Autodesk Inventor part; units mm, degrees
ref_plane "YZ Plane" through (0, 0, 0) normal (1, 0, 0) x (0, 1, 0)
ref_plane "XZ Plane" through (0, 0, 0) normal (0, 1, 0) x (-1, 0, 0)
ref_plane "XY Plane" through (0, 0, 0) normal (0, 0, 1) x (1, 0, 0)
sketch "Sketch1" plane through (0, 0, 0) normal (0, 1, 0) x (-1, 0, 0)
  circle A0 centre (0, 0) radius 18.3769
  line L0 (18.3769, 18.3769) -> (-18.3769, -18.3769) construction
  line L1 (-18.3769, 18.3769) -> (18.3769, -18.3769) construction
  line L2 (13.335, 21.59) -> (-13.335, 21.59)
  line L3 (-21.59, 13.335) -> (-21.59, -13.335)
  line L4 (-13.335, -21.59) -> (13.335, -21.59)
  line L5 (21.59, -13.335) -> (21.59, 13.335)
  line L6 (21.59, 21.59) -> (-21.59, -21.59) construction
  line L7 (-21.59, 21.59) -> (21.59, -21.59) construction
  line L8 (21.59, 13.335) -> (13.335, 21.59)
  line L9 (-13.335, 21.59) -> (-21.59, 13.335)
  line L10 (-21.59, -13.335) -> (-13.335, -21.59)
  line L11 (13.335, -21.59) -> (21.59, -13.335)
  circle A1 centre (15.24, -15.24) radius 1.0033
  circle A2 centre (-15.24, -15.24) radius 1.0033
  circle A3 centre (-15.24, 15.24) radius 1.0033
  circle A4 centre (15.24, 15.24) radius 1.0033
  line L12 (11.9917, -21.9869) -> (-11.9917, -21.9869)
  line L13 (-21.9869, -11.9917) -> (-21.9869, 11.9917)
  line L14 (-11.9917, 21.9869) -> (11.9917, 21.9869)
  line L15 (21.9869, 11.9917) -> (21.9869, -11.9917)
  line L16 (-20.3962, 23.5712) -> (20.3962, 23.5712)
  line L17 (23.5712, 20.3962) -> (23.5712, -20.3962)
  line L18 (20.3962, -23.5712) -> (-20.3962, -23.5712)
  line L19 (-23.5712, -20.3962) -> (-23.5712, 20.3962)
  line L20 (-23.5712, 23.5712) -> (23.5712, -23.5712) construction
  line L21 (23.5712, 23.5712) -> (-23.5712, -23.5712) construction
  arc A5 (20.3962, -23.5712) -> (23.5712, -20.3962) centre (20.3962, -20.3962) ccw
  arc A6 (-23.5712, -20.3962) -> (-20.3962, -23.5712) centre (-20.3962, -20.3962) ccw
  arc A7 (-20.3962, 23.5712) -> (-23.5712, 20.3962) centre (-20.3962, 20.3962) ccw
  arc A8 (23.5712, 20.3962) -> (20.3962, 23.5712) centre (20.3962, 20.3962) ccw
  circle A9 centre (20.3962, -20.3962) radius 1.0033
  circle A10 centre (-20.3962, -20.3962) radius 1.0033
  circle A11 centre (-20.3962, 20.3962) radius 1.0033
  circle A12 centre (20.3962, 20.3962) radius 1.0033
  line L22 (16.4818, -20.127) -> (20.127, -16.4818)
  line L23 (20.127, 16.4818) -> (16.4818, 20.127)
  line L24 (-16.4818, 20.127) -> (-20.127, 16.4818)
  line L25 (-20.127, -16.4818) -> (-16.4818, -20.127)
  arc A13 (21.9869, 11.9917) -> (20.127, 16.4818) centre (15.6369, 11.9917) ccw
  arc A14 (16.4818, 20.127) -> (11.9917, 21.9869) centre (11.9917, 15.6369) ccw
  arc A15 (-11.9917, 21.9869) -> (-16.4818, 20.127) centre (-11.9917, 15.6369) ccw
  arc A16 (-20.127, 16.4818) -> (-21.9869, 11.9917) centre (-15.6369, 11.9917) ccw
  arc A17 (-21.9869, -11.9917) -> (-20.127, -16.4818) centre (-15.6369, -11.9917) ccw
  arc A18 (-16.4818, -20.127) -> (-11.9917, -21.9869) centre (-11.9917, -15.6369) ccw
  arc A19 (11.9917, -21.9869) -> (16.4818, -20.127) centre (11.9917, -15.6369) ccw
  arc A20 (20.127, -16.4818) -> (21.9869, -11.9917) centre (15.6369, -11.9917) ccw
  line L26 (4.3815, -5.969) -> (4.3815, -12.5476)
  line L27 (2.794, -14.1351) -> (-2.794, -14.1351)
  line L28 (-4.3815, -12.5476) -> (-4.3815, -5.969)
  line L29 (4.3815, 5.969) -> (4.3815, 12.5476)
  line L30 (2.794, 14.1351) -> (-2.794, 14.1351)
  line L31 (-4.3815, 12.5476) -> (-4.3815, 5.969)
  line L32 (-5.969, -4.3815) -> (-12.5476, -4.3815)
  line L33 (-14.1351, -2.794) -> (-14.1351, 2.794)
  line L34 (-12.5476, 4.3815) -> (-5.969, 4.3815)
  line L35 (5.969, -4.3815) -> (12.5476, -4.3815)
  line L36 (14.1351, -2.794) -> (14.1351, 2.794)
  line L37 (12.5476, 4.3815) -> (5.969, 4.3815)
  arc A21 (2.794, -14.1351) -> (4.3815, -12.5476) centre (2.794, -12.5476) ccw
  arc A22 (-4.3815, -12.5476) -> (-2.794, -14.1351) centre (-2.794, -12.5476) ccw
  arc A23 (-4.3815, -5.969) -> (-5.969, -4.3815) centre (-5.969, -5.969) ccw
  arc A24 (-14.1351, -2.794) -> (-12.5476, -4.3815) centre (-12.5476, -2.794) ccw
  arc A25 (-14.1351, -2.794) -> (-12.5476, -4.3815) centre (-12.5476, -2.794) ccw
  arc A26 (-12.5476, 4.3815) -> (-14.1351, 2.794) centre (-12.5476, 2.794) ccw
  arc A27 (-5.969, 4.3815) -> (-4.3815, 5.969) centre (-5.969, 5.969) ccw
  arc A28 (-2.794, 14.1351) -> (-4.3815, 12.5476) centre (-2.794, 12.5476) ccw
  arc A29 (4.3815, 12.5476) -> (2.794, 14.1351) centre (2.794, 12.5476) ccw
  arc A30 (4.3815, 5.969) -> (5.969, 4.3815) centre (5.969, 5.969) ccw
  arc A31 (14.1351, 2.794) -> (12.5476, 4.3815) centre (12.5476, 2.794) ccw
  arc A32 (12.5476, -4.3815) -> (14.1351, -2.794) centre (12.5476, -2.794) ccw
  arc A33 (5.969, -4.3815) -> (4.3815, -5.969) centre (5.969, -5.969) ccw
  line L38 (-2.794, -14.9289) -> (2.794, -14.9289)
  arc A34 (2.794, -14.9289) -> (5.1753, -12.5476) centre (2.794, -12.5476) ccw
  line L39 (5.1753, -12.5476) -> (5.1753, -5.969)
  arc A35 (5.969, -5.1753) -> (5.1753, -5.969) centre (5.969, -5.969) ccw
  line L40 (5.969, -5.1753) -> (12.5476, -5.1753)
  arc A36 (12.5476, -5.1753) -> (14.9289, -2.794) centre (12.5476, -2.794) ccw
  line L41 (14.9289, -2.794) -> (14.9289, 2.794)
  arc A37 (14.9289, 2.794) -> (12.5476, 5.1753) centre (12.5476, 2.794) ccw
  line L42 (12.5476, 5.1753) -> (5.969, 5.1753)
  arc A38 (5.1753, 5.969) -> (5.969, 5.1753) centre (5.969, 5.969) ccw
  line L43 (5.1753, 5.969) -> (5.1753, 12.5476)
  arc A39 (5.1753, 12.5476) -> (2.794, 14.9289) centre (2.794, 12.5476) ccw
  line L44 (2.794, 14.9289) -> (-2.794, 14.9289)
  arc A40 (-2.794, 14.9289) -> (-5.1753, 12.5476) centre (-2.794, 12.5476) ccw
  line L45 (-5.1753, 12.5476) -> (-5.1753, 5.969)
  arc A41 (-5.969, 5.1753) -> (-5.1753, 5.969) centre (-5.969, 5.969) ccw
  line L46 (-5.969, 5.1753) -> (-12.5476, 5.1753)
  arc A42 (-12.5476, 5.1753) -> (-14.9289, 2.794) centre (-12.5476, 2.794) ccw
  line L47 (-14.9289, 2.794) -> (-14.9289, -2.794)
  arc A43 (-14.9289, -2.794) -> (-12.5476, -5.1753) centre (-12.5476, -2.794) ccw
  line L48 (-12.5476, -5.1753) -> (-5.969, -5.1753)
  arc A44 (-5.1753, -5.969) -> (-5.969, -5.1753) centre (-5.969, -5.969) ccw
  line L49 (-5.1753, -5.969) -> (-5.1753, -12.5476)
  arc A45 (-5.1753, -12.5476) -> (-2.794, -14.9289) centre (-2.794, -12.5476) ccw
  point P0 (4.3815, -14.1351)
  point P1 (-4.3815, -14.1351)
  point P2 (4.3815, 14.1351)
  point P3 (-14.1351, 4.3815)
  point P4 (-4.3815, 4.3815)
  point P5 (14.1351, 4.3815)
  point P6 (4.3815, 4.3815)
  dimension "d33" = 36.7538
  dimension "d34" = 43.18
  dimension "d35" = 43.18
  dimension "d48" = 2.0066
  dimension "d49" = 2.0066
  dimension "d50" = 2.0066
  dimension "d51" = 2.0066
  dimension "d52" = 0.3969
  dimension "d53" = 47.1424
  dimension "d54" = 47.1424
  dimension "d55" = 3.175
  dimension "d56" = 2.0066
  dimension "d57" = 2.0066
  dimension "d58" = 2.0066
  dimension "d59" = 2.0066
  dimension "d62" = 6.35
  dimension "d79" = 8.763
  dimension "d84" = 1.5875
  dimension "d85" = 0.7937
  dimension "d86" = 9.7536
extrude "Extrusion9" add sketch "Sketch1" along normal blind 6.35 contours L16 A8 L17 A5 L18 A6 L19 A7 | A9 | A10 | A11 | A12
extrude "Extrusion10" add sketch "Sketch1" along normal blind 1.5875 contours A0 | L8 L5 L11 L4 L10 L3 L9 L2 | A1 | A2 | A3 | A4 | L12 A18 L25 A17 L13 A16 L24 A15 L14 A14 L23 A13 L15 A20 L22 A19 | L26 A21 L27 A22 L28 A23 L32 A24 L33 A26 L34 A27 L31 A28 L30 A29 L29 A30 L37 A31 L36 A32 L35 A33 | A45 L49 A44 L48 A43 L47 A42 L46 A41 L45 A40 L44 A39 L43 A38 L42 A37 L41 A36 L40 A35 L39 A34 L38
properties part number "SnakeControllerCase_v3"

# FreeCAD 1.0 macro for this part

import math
import FreeCAD as App
import Part
import Sketcher
from FreeCAD import Vector
Q = App.Units.Quantity

doc = App.newDocument("Part")
body = doc.addObject("PartDesign::Body", "Body")

# Sketch on XZ plane
sketch1 = doc.addObject("Sketcher::SketchObject", "Sketch")
body.addObject(sketch1)
sketch1.AttachmentSupport = (doc.XZ_Plane, [""])
sketch1.MapMode = "FlatFace"
sketch1.addGeometry([
    Part.LineSegment(Vector(-20.4, 23.6, 0), Vector(20.4, 23.6, 0)),  # 0
    Part.ArcOfCircle(Part.Circle(Vector(20.4, 20.4, 0), Vector(0, 0, 1), 3.2), math.radians(0), math.radians(90)),  # 1
    Part.LineSegment(Vector(23.6, 20.4, 0), Vector(23.6, -20.4, 0)),  # 2
    Part.ArcOfCircle(Part.Circle(Vector(20.4, -20.4, 0), Vector(0, 0, 1), 3.2), math.radians(-90), math.radians(0)),  # 3
    Part.LineSegment(Vector(20.4, -23.6, 0), Vector(-20.4, -23.6, 0)),  # 4
    Part.ArcOfCircle(Part.Circle(Vector(-20.4, -20.4, 0), Vector(0, 0, 1), 3.2), math.radians(180), math.radians(270)),  # 5
    Part.LineSegment(Vector(-23.6, -20.4, 0), Vector(-23.6, 20.4, 0)),  # 6
    Part.ArcOfCircle(Part.Circle(Vector(-20.4, 20.4, 0), Vector(0, 0, 1), 3.2), math.radians(90), math.radians(180)),  # 7
    Part.ArcOfCircle(Part.Circle(Vector(-12, -15.6, 0), Vector(0, 0, 1), 6.3), math.radians(-135), math.radians(-90)),  # 8
    Part.LineSegment(Vector(-12, -22, 0), Vector(12, -22, 0)),  # 9
    Part.ArcOfCircle(Part.Circle(Vector(12, -15.6, 0), Vector(0, 0, 1), 6.3), math.radians(-90), math.radians(-45)),  # 10
    Part.LineSegment(Vector(16.5, -20.1, 0), Vector(20.1, -16.5, 0)),  # 11
    Part.ArcOfCircle(Part.Circle(Vector(15.6, -12, 0), Vector(0, 0, 1), 6.3), math.radians(-45), math.radians(0)),  # 12
    Part.LineSegment(Vector(22, -12, 0), Vector(22, 12, 0)),  # 13
    Part.ArcOfCircle(Part.Circle(Vector(15.6, 12, 0), Vector(0, 0, 1), 6.3), math.radians(0), math.radians(45)),  # 14
    Part.LineSegment(Vector(20.1, 16.5, 0), Vector(16.5, 20.1, 0)),  # 15
    Part.ArcOfCircle(Part.Circle(Vector(12, 15.6, 0), Vector(0, 0, 1), 6.3), math.radians(45), math.radians(90)),  # 16
    Part.LineSegment(Vector(12, 22, 0), Vector(-12, 22, 0)),  # 17
    Part.ArcOfCircle(Part.Circle(Vector(-12, 15.6, 0), Vector(0, 0, 1), 6.3), math.radians(90), math.radians(135)),  # 18
    Part.LineSegment(Vector(-16.5, 20.1, 0), Vector(-20.1, 16.5, 0)),  # 19
    Part.ArcOfCircle(Part.Circle(Vector(-15.6, 12, 0), Vector(0, 0, 1), 6.3), math.radians(135), math.radians(180)),  # 20
    Part.LineSegment(Vector(-22, 12, 0), Vector(-22, -12, 0)),  # 21
    Part.ArcOfCircle(Part.Circle(Vector(-15.6, -12, 0), Vector(0, 0, 1), 6.3), math.radians(180), math.radians(225)),  # 22
    Part.LineSegment(Vector(-20.1, -16.5, 0), Vector(-16.5, -20.1, 0)),  # 23
], False)
sketch1.addConstraint([
    Sketcher.Constraint("Tangent", 0, 2, 1, 2),
    Sketcher.Constraint("Tangent", 1, 1, 2, 1),
    Sketcher.Constraint("Tangent", 2, 2, 3, 2),
    Sketcher.Constraint("Tangent", 3, 1, 4, 1),
    Sketcher.Constraint("Tangent", 4, 2, 5, 2),
    Sketcher.Constraint("Tangent", 5, 1, 6, 1),
    Sketcher.Constraint("Tangent", 6, 2, 7, 2),
    Sketcher.Constraint("Tangent", 7, 1, 0, 1),
    Sketcher.Constraint("Tangent", 8, 2, 9, 1),
    Sketcher.Constraint("Tangent", 9, 2, 10, 1),
    Sketcher.Constraint("Tangent", 10, 2, 11, 1),
    Sketcher.Constraint("Tangent", 11, 2, 12, 1),
    Sketcher.Constraint("Tangent", 12, 2, 13, 1),
    Sketcher.Constraint("Tangent", 13, 2, 14, 1),
    Sketcher.Constraint("Tangent", 14, 2, 15, 1),
    Sketcher.Constraint("Tangent", 15, 2, 16, 1),
    Sketcher.Constraint("Tangent", 16, 2, 17, 1),
    Sketcher.Constraint("Tangent", 17, 2, 18, 1),
    Sketcher.Constraint("Tangent", 18, 2, 19, 1),
    Sketcher.Constraint("Tangent", 19, 2, 20, 1),
    Sketcher.Constraint("Tangent", 20, 2, 21, 1),
    Sketcher.Constraint("Tangent", 21, 2, 22, 1),
    Sketcher.Constraint("Tangent", 22, 2, 23, 1),
    Sketcher.Constraint("Tangent", 23, 2, 8, 1),
    Sketcher.Constraint("Horizontal", 0),
    Sketcher.Constraint("Vertical", 2),
    Sketcher.Constraint("Horizontal", 4),
    Sketcher.Constraint("Vertical", 6),
    Sketcher.Constraint("Horizontal", 9),
    Sketcher.Constraint("Vertical", 13),
    Sketcher.Constraint("Horizontal", 17),
    Sketcher.Constraint("Vertical", 21),
    Sketcher.Constraint("Equal", 1, 3),
    Sketcher.Constraint("Equal", 3, 5),
    Sketcher.Constraint("Equal", 5, 7),
    Sketcher.Constraint("Equal", 8, 10),
    Sketcher.Constraint("Equal", 10, 12),
    Sketcher.Constraint("Equal", 12, 14),
    Sketcher.Constraint("Equal", 14, 16),
    Sketcher.Constraint("Equal", 16, 18),
    Sketcher.Constraint("Equal", 18, 20),
    Sketcher.Constraint("Equal", 20, 22),
    Sketcher.Constraint("Symmetric", 1, 3, 5, 3, -1, 1),
    Sketcher.Constraint("Symmetric", 8, 3, 16, 3, -1, 1),
    Sketcher.Constraint("Symmetric", 12, 3, 20, 3, -1, 1),
    Sketcher.Constraint("Symmetric", 15, 2, 18, 2, -2),
    Sketcher.Constraint("Symmetric", 11, 2, 22, 2, -2),
    Sketcher.Constraint("Perpendicular", 11, 15),
    Sketcher.Constraint("Equal", 4, 2),
    Sketcher.Constraint("Equal", 17, 13),
    Sketcher.Constraint("Radius", 8, Q("0.25 in")),
    Sketcher.Constraint("Radius", 1, Q("0.125 in")),
    Sketcher.Constraint("DistanceX", 0, 1, 0, 2, Q("1.606 in")),
    Sketcher.Constraint("DistanceX", 9, 1, 9, 2, 23.9834),
    Sketcher.Constraint("DistanceY", 10, 2, -1, 1, Q("0.7924 in")),
])
pad1 = doc.addObject("PartDesign::Pad", "Pad")
body.addObject(pad1)
pad1.Profile = sketch1
pad1.Length = Q("0.25 in")
pad1.Reversed = True

# Sketch on XZ plane
sketch2 = doc.addObject("Sketcher::SketchObject", "Sketch001")
body.addObject(sketch2)
sketch2.AttachmentSupport = (doc.XZ_Plane, [""])
sketch2.MapMode = "FlatFace"
sketch2.addGeometry([
    Part.LineSegment(Vector(12, -22, 0), Vector(-12, -22, 0)),  # 0
    Part.ArcOfCircle(Part.Circle(Vector(-12, -15.6, 0), Vector(0, 0, 1), 6.3), math.radians(-135), math.radians(-90)),  # 1
    Part.LineSegment(Vector(-16.5, -20.1, 0), Vector(-20.1, -16.5, 0)),  # 2
    Part.ArcOfCircle(Part.Circle(Vector(-15.6, -12, 0), Vector(0, 0, 1), 6.3), math.radians(180), math.radians(225)),  # 3
    Part.LineSegment(Vector(-22, -12, 0), Vector(-22, 12, 0)),  # 4
    Part.ArcOfCircle(Part.Circle(Vector(-15.6, 12, 0), Vector(0, 0, 1), 6.3), math.radians(135), math.radians(180)),  # 5
    Part.LineSegment(Vector(-20.1, 16.5, 0), Vector(-16.5, 20.1, 0)),  # 6
    Part.ArcOfCircle(Part.Circle(Vector(-12, 15.6, 0), Vector(0, 0, 1), 6.3), math.radians(90), math.radians(135)),  # 7
    Part.LineSegment(Vector(-12, 22, 0), Vector(12, 22, 0)),  # 8
    Part.ArcOfCircle(Part.Circle(Vector(12, 15.6, 0), Vector(0, 0, 1), 6.3), math.radians(45), math.radians(90)),  # 9
    Part.LineSegment(Vector(16.5, 20.1, 0), Vector(20.1, 16.5, 0)),  # 10
    Part.ArcOfCircle(Part.Circle(Vector(15.6, 12, 0), Vector(0, 0, 1), 6.3), math.radians(0), math.radians(45)),  # 11
    Part.LineSegment(Vector(22, 12, 0), Vector(22, -12, 0)),  # 12
    Part.ArcOfCircle(Part.Circle(Vector(15.6, -12, 0), Vector(0, 0, 1), 6.3), math.radians(-45), math.radians(0)),  # 13
    Part.LineSegment(Vector(20.1, -16.5, 0), Vector(16.5, -20.1, 0)),  # 14
    Part.ArcOfCircle(Part.Circle(Vector(12, -15.6, 0), Vector(0, 0, 1), 6.3), math.radians(-90), math.radians(-45)),  # 15
], False)
sketch2.addConstraint([
    Sketcher.Constraint("Tangent", 0, 2, 1, 2),
    Sketcher.Constraint("Tangent", 1, 1, 2, 1),
    Sketcher.Constraint("Tangent", 2, 2, 3, 2),
    Sketcher.Constraint("Tangent", 3, 1, 4, 1),
    Sketcher.Constraint("Tangent", 4, 2, 5, 2),
    Sketcher.Constraint("Tangent", 5, 1, 6, 1),
    Sketcher.Constraint("Tangent", 6, 2, 7, 2),
    Sketcher.Constraint("Tangent", 7, 1, 8, 1),
    Sketcher.Constraint("Tangent", 8, 2, 9, 2),
    Sketcher.Constraint("Tangent", 9, 1, 10, 1),
    Sketcher.Constraint("Tangent", 10, 2, 11, 2),
    Sketcher.Constraint("Tangent", 11, 1, 12, 1),
    Sketcher.Constraint("Tangent", 12, 2, 13, 2),
    Sketcher.Constraint("Tangent", 13, 1, 14, 1),
    Sketcher.Constraint("Tangent", 14, 2, 15, 2),
    Sketcher.Constraint("Tangent", 15, 1, 0, 1),
    Sketcher.Constraint("Horizontal", 0),
    Sketcher.Constraint("Vertical", 4),
    Sketcher.Constraint("Horizontal", 8),
    Sketcher.Constraint("Vertical", 12),
    Sketcher.Constraint("Equal", 1, 3),
    Sketcher.Constraint("Equal", 3, 5),
    Sketcher.Constraint("Equal", 5, 7),
    Sketcher.Constraint("Equal", 7, 9),
    Sketcher.Constraint("Equal", 9, 11),
    Sketcher.Constraint("Equal", 11, 13),
    Sketcher.Constraint("Equal", 13, 15),
    Sketcher.Constraint("Symmetric", 1, 3, 9, 3, -1, 1),
    Sketcher.Constraint("Symmetric", 3, 3, 11, 3, -1, 1),
    Sketcher.Constraint("Symmetric", 5, 1, 13, 1, -1, 1),
    Sketcher.Constraint("Symmetric", 6, 2, 9, 1, -2),
    Sketcher.Constraint("Perpendicular", 2, 6),
    Sketcher.Constraint("Equal", 8, 4),
    Sketcher.Constraint("Radius", 1, Q("0.25 in")),
    Sketcher.Constraint("DistanceX", 1, 1, 15, 3, Q("1.121 in")),
    Sketcher.Constraint("DistanceY", 1, 1, -1, 1, Q("0.7924 in")),
])
pad2 = doc.addObject("PartDesign::Pad", "Pad001")
body.addObject(pad2)
pad2.Profile = sketch2
pad2.Length = Q("0.0625 in")
pad2.Reversed = True

doc.recompute()
